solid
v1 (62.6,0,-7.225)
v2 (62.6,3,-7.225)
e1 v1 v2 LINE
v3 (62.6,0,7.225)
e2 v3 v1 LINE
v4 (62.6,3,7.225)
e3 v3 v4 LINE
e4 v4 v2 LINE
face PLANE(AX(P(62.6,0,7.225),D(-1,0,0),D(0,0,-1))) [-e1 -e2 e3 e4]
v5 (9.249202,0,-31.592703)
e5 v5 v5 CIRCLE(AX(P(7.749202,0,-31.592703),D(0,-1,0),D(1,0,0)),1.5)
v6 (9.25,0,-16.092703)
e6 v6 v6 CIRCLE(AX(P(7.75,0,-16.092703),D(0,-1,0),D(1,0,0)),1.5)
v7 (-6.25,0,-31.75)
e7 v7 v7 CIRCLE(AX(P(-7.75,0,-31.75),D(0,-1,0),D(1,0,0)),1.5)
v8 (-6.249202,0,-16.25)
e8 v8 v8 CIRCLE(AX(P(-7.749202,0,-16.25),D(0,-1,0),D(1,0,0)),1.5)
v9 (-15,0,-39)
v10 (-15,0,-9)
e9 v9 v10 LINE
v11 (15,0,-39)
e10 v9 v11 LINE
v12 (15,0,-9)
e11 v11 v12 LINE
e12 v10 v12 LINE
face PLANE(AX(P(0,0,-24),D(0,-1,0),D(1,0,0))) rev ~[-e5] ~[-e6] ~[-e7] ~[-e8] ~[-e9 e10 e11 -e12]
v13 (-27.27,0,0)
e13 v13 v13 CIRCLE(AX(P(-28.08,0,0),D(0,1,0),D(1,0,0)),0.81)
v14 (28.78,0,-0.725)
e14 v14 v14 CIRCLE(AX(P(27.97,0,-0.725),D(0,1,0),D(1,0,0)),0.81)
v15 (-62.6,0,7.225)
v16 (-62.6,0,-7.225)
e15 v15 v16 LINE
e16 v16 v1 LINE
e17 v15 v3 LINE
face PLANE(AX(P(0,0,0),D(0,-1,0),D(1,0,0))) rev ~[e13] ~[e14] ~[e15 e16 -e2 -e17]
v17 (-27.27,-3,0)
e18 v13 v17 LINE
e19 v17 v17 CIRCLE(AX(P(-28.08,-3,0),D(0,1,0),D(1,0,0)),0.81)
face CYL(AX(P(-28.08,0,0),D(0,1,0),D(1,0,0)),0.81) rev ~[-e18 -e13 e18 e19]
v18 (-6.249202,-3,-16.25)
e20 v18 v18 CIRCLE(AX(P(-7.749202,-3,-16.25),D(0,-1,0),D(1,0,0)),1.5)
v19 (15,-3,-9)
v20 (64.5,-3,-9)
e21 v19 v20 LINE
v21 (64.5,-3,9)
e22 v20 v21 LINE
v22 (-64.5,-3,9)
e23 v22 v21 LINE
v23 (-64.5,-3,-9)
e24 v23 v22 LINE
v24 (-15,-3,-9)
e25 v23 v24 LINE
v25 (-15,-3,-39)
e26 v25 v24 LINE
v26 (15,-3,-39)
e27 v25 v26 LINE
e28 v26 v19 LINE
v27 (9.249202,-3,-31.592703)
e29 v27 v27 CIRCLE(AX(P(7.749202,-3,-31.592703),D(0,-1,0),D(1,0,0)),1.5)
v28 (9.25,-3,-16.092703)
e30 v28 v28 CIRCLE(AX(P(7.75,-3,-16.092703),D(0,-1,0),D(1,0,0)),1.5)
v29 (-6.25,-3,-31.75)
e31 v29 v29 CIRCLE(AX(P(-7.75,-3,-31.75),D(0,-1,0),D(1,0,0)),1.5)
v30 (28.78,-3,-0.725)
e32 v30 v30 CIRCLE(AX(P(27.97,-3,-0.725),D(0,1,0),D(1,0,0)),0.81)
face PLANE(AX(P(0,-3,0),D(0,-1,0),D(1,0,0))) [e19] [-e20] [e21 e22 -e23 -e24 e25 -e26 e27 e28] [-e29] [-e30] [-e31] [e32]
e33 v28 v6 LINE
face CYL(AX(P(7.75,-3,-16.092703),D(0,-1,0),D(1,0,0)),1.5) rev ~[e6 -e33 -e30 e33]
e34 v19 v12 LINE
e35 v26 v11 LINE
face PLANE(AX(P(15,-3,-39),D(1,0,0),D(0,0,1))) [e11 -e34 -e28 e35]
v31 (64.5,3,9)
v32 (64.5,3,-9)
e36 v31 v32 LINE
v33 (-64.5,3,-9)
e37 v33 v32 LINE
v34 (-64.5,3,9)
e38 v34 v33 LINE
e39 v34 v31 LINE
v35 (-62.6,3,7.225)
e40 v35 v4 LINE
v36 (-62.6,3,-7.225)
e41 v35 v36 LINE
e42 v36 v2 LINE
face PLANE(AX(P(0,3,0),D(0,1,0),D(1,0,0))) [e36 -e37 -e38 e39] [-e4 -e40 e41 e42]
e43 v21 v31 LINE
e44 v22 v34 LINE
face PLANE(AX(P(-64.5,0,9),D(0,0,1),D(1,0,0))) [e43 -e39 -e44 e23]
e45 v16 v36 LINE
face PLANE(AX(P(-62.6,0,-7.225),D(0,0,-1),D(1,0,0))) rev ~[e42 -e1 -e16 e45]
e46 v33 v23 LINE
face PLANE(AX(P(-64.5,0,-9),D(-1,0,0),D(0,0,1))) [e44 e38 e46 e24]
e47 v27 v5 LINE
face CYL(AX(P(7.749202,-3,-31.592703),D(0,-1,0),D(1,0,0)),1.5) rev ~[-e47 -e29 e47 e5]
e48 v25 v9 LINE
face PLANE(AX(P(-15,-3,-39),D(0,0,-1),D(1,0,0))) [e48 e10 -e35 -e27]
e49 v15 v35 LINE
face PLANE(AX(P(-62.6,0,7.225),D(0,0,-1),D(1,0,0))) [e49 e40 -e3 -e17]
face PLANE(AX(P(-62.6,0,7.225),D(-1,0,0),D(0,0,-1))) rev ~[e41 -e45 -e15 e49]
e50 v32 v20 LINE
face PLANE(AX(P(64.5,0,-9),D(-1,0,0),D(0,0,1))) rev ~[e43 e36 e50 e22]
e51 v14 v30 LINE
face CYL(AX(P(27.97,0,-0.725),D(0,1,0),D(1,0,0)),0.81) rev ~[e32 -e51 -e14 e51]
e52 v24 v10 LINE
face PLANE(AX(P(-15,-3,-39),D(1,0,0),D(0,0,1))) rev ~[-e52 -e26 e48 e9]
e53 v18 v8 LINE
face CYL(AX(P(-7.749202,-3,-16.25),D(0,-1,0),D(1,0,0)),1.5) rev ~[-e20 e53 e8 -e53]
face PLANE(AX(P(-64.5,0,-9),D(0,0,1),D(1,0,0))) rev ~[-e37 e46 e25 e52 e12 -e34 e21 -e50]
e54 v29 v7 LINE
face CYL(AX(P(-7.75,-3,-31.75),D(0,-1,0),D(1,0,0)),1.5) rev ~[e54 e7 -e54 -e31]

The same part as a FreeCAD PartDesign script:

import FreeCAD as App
import Part
import Sketcher
Q = App.Units.Quantity

doc = App.newDocument("Part")
body = doc.addObject("PartDesign::Body", "Body")

sketch1 = doc.addObject("Sketcher::SketchObject", "Sketch")
body.addObject(sketch1)
sketch1.AttachmentSupport = (doc.XZ_Plane, [""])
sketch1.MapMode = "FlatFace"
sketch1.addGeometry([
    Part.LineSegment(App.Vector(-64, -9, 0), App.Vector(-64, 9, 0)),
    Part.LineSegment(App.Vector(-64, 9, 0), App.Vector(64, 9, 0)),
    Part.LineSegment(App.Vector(64, 9, 0), App.Vector(64, -9, 0)),
    Part.LineSegment(App.Vector(64, -9, 0), App.Vector(-64, -9, 0)),
    Part.LineSegment(App.Vector(63, 7, 0), App.Vector(-63, 7, 0)),
    Part.LineSegment(App.Vector(-63, 7, 0), App.Vector(-63, -7, 0)),
    Part.LineSegment(App.Vector(-63, -7, 0), App.Vector(63, -7, 0)),
    Part.LineSegment(App.Vector(63, -7, 0), App.Vector(63, 7, 0)),
], False)
sketch1.addConstraint([
    Sketcher.Constraint("Coincident", 0, 2, 1, 1),
    Sketcher.Constraint("Coincident", 1, 2, 2, 1),
    Sketcher.Constraint("Coincident", 2, 2, 3, 1),
    Sketcher.Constraint("Coincident", 3, 2, 0, 1),
    Sketcher.Constraint("Coincident", 4, 2, 5, 1),
    Sketcher.Constraint("Coincident", 5, 2, 6, 1),
    Sketcher.Constraint("Coincident", 6, 2, 7, 1),
    Sketcher.Constraint("Coincident", 7, 2, 4, 1),
    Sketcher.Constraint("Vertical", 0),
    Sketcher.Constraint("Horizontal", 1),
    Sketcher.Constraint("Vertical", 2),
    Sketcher.Constraint("Horizontal", 3),
    Sketcher.Constraint("Horizontal", 4),
    Sketcher.Constraint("Vertical", 5),
    Sketcher.Constraint("Horizontal", 6),
    Sketcher.Constraint("Vertical", 7),
    Sketcher.Constraint("Symmetric", 0, 2, 2, 2, -1, 1),
    Sketcher.Constraint("Symmetric", 4, 2, 6, 2, -1, 1),
    Sketcher.Constraint("DistanceX", 1, 1, 1, 2, Q("129 mm")),
    Sketcher.Constraint("DistanceY", 0, 1, 0, 2, Q("18 mm")),
    Sketcher.Constraint("DistanceX", 4, 2, 4, 1, Q("125.2 mm")),
    Sketcher.Constraint("DistanceY", 5, 2, 5, 1, Q("14.45 mm")),
])
pad1 = doc.addObject("PartDesign::Pad", "Pad")
body.addObject(pad1)
pad1.Profile = sketch1
pad1.Length = 3
pad1.Reversed = True

sketch2 = doc.addObject("Sketcher::SketchObject", "Sketch001")
body.addObject(sketch2)
sketch2.AttachmentSupport = (doc.XZ_Plane, [""])
sketch2.MapMode = "FlatFace"
sketch2.addGeometry([
    Part.LineSegment(App.Vector(-64, 9, 0), App.Vector(-64, -9, 0)),
    Part.LineSegment(App.Vector(-64, -9, 0), App.Vector(64, -9, 0)),
    Part.LineSegment(App.Vector(64, -9, 0), App.Vector(64, 9, 0)),
    Part.LineSegment(App.Vector(64, 9, 0), App.Vector(-64, 9, 0)),
], False)
sketch2.addConstraint([
    Sketcher.Constraint("Coincident", 0, 2, 1, 1),
    Sketcher.Constraint("Coincident", 1, 2, 2, 1),
    Sketcher.Constraint("Coincident", 2, 2, 3, 1),
    Sketcher.Constraint("Coincident", 3, 2, 0, 1),
    Sketcher.Constraint("Vertical", 0),
    Sketcher.Constraint("Horizontal", 1),
    Sketcher.Constraint("Vertical", 2),
    Sketcher.Constraint("Horizontal", 3),
    Sketcher.Constraint("Symmetric", 0, 2, 2, 2, -1, 1),
    Sketcher.Constraint("DistanceX", 1, 1, 1, 2, Q("129 mm")),
    Sketcher.Constraint("DistanceY", 0, 2, 0, 1, Q("18 mm")),
])
pad2 = doc.addObject("PartDesign::Pad", "Pad001")
body.addObject(pad2)
pad2.Profile = sketch2
pad2.Length = 3

sketch3 = doc.addObject("Sketcher::SketchObject", "Sketch002")
body.addObject(sketch3)
sketch3.AttachmentSupport = (doc.XZ_Plane, [""])
sketch3.MapMode = "FlatFace"
sketch3.addGeometry([
    Part.Circle(App.Vector(28, -0.7, 0), App.Vector(0, 0, 1), 0.8),
    Part.Circle(App.Vector(-28.1, 0, 0), App.Vector(0, 0, 1), 0.8),
], False)
sketch3.addConstraint([
    Sketcher.Constraint("Equal", 0, 1),
    Sketcher.Constraint("PointOnObject", 1, 3, -1),
    Sketcher.Constraint("Diameter", 0, Q("1.62 mm")),
    Sketcher.Constraint("DistanceX", -1, 1, 0, 3, Q("27.97 mm")),
    Sketcher.Constraint("DistanceX", 1, 3, -1, 1, Q("28.08 mm")),
    Sketcher.Constraint("DistanceY", 0, 3, -1, 1, Q("0.725 mm")),
])
pocket1 = doc.addObject("PartDesign::Pocket", "Pocket")
body.addObject(pocket1)
pocket1.Profile = sketch3
pocket1.Type = "ThroughAll"
pocket1.Reversed = True

sketch4 = doc.addObject("Sketcher::SketchObject", "Sketch003")
body.addObject(sketch4)
sketch4.AttachmentSupport = (doc.XZ_Plane, [""])
sketch4.MapMode = "FlatFace"
sketch4.AttachmentOffset = App.Placement(App.Vector(0, 0, 3), App.Rotation())
sketch4.addGeometry([
    Part.LineSegment(App.Vector(-15, -9, 0), App.Vector(-15, -39, 0)),
    Part.LineSegment(App.Vector(-15, -39, 0), App.Vector(15, -39, 0)),
    Part.LineSegment(App.Vector(15, -39, 0), App.Vector(15, -9, 0)),
    Part.LineSegment(App.Vector(15, -9, 0), App.Vector(-15, -9, 0)),
    Part.Circle(App.Vector(-7.8, -31.8, 0), App.Vector(0, 0, 1), 1.5),
    Part.Circle(App.Vector(7.7, -31.6, 0), App.Vector(0, 0, 1), 1.5),
    Part.Circle(App.Vector(-7.7, -16.3, 0), App.Vector(0, 0, 1), 1.5),
    Part.Circle(App.Vector(7.8, -16.1, 0), App.Vector(0, 0, 1), 1.5),
], False)
sketch4.addConstraint([
    Sketcher.Constraint("Coincident", 0, 2, 1, 1),
    Sketcher.Constraint("Coincident", 1, 2, 2, 1),
    Sketcher.Constraint("Coincident", 2, 2, 3, 1),
    Sketcher.Constraint("Coincident", 3, 2, 0, 1),
    Sketcher.Constraint("Vertical", 0),
    Sketcher.Constraint("Horizontal", 1),
    Sketcher.Constraint("Vertical", 2),
    Sketcher.Constraint("Horizontal", 3),
    Sketcher.Constraint("Equal", 4, 5),
    Sketcher.Constraint("Equal", 5, 6),
    Sketcher.Constraint("Equal", 6, 7),
    Sketcher.Constraint("Equal", 3, 0),
    Sketcher.Constraint("Diameter", 4, Q("3 mm")),
    Sketcher.Constraint("DistanceX", 1, 1, 1, 2, Q("30 mm")),
    Sketcher.Constraint("DistanceX", 0, 2, -1, 1, Q("15 mm")),
    Sketcher.Constraint("DistanceY", 0, 2, -1, 1, Q("39 mm")),
    Sketcher.Constraint("DistanceY", 4, 3, 6, 3, Q("15.5 mm")),
    Sketcher.Constraint("DistanceY", 5, 3, 7, 3, Q("15.5 mm")),
    Sketcher.Constraint("DistanceX", 4, 3, 7, 3, Q("15.5 mm")),
    Sketcher.Constraint("DistanceX", 4, 3, -1, 1, Q("7.75 mm")),
    Sketcher.Constraint("DistanceY", 4, 3, -1, 1, Q("31.75 mm")),
    Sketcher.Constraint("DistanceX", -1, 1, 5, 3, Q("7.749202 mm")),
    Sketcher.Constraint("DistanceX", 6, 3, -1, 1, Q("7.749202 mm")),
    Sketcher.Constraint("DistanceY", 5, 3, -1, 1, Q("31.592703 mm")),
])
pad3 = doc.addObject("PartDesign::Pad", "Pad002")
body.addObject(pad3)
pad3.Profile = sketch4
pad3.Length = 3
pad3.Reversed = True

doc.recompute()
